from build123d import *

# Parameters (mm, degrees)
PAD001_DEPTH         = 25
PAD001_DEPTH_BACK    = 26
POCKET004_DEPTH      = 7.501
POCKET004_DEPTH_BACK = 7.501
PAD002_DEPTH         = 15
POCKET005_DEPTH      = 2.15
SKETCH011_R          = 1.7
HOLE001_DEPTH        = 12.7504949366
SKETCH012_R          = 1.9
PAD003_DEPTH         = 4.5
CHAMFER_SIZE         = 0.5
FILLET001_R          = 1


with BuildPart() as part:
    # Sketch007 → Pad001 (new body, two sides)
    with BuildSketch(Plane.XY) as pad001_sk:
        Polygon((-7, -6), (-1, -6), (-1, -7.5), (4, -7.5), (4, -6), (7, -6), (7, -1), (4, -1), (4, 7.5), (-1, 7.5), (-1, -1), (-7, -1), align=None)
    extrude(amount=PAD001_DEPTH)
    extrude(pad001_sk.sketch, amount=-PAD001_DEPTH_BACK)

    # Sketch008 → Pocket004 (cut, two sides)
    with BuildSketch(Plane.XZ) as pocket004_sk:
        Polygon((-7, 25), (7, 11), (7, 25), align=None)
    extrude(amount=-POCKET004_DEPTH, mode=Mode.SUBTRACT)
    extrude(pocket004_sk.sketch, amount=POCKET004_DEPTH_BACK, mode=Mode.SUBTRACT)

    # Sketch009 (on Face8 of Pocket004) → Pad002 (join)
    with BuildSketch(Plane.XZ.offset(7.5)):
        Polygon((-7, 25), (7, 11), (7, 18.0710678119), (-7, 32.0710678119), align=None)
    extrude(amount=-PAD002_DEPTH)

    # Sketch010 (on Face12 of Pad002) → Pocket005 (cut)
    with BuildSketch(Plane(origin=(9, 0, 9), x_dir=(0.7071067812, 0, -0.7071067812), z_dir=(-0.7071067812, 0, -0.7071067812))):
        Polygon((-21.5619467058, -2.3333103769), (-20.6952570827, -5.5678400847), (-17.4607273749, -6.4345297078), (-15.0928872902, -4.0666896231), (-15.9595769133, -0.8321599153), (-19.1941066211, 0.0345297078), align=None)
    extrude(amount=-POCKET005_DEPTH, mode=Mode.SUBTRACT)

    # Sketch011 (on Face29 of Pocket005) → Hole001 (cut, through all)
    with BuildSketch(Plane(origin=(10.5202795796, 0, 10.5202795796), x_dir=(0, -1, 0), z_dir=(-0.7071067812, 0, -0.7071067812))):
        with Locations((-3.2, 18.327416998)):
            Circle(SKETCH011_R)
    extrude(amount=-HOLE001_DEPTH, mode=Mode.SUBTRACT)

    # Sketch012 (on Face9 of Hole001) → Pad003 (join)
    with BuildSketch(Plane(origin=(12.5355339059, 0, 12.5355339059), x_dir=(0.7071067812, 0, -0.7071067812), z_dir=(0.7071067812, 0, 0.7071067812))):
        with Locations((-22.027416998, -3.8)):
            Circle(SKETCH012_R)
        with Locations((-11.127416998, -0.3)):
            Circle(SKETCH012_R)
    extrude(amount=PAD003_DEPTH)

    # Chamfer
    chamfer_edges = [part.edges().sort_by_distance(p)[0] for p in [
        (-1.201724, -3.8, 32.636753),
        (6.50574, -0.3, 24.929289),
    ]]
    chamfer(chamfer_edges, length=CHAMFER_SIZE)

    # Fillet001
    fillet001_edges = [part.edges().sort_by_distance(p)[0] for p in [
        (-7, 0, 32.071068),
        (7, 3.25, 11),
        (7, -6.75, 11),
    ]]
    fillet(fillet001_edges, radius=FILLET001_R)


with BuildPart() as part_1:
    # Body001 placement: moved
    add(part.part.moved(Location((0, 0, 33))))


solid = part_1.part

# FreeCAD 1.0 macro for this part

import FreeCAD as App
import Part
import Sketcher
Q = App.Units.Quantity


def edges_at(feature, points):
    """Names of the edges that pass closest to the given points."""
    edges = feature.Shape.Edges
    near = lambda p: min(range(len(edges)), key=lambda i: edges[i].distToShape(Part.Vertex(*p))[0])
    return sorted({f"Edge{near(p) + 1}" for p in points})


def add_polygon(sketch, points):
    """Adds a closed chain of lines whose ends are joined by coincident constraints."""
    first, n = sketch.GeometryCount, len(points)
    for a, b in zip(points, points[1:] + points[:1]):
        sketch.addGeometry(Part.LineSegment(App.Vector(*a, 0), App.Vector(*b, 0)), False)
    for i in range(n):
        sketch.addConstraint(Sketcher.Constraint("Coincident", first + i, 2, first + (i + 1) % n, 1))

doc = App.newDocument("Part")
body = doc.addObject("PartDesign::Body", "Body")

sketch1 = body.newObject("Sketcher::SketchObject", "Sketch")
sketch1.AttachmentSupport = (doc.getObject("XY_Plane"), [""])
sketch1.MapMode = "FlatFace"
add_polygon(sketch1, [(-7, -6), (-1, -6), (-1, -7.5), (4, -7.5), (4, -6), (7, -6), (7, -1), (4, -1), (4, 7.5), (-1, 7.5), (-1, -1), (-7, -1)])
sketch1.addConstraint([
    Sketcher.Constraint("Horizontal", 0),
    Sketcher.Constraint("Vertical", 1),
    Sketcher.Constraint("Horizontal", 2),
    Sketcher.Constraint("Vertical", 3),
    Sketcher.Constraint("Horizontal", 4),
    Sketcher.Constraint("Vertical", 5),
    Sketcher.Constraint("Horizontal", 6),
    Sketcher.Constraint("Vertical", 7),
    Sketcher.Constraint("Horizontal", 8),
    Sketcher.Constraint("Vertical", 9),
    Sketcher.Constraint("Horizontal", 10),
    Sketcher.Constraint("Vertical", 11),
    Sketcher.Constraint("Symmetric", 5, 2, 10, 2, -2),
    Sketcher.Constraint("Symmetric", 2, 2, 7, 2, -1),
    Sketcher.Constraint("Horizontal", 0, 2, 3, 2),
    Sketcher.Constraint("Vertical", 1, 2, 8, 2),
    Sketcher.Constraint("Equal", 8, 5),
    Sketcher.Constraint("DistanceX", 0, 1, 0, 2, Q("6 mm")),
    Sketcher.Constraint("DistanceX", 2, 1, 2, 2, Q("5 mm")),
    Sketcher.Constraint("DistanceX", 4, 1, 4, 2, Q("3 mm")),
    Sketcher.Constraint("DistanceY", 1, 2, 1, 1, Q("1.5 mm")),
    Sketcher.Constraint("DistanceY", 7, 1, 7, 2, Q("8.5 mm")),
])
pad1 = body.newObject("PartDesign::Pad", "Pad")
pad1.Profile = sketch1
pad1.Type = "TwoLengths"
pad1.Length = 25
pad1.Length2 = 26

sketch2 = body.newObject("Sketcher::SketchObject", "Sketch001")
sketch2.AttachmentSupport = (doc.getObject("XZ_Plane"), [""])
sketch2.MapMode = "FlatFace"
add_polygon(sketch2, [(-7, 25), (7, 11), (7, 25)])
sketch2.addConstraint([
    Sketcher.Constraint("Vertical", 1),
    Sketcher.Constraint("Horizontal", 2),
    Sketcher.Constraint("Equal", 2, 1),
    Sketcher.Constraint("DistanceX", 2, 2, 2, 1, Q("14 mm")),
    Sketcher.Constraint("DistanceX", -1, 1, 0, 2, Q("7 mm")),
    Sketcher.Constraint("DistanceY", -1, 1, 0, 2, Q("11 mm")),
])
pocket1 = body.newObject("PartDesign::Pocket", "Pocket")
pocket1.Profile = sketch2
pocket1.Type = "ThroughAll"
pocket1.Midplane = True

sketch3 = body.newObject("Sketcher::SketchObject", "Sketch002")
sketch3.AttachmentSupport = (doc.getObject("XZ_Plane"), [""])
sketch3.MapMode = "FlatFace"
sketch3.AttachmentOffset = App.Placement(App.Vector(0, 0, 7.5), App.Rotation())
add_polygon(sketch3, [(-7, 25), (7, 11), (7, 18.071068), (-7, 32.071068)])
sketch3.addConstraint([
    Sketcher.Constraint("Vertical", 1),
    Sketcher.Constraint("Vertical", 3),
    Sketcher.Constraint("Parallel", 0, 2),
    Sketcher.Constraint("Angle", 0, Q("-45 deg")),
    Sketcher.Constraint("DistanceX", -1, 1, 0, 2, Q("7 mm")),
    Sketcher.Constraint("DistanceY", -1, 1, 0, 2, Q("11 mm")),
    Sketcher.Constraint("DistanceX", 2, 2, -1, 1, Q("7 mm")),
    Sketcher.Constraint("DistanceY", 1, 1, 1, 2, Q("7.071068 mm")),
])
pad2 = body.newObject("PartDesign::Pad", "Pad001")
pad2.Profile = sketch3
pad2.Length = 15
pad2.Reversed = True

sketch4 = body.newObject("Sketcher::SketchObject", "Sketch003")
sketch4.Placement = App.Placement(App.Vector(9, 0, 9), App.Rotation(App.Vector(0.707106781, 0, -0.707106781), App.Vector(0, -0.999999999, 0), App.Vector(-0.707106781, 0, -0.707106781), "ZXY"))
add_polygon(sketch4, [(-21.561947, -2.33331), (-20.695257, -5.56784), (-17.460727, -6.43453), (-15.092887, -4.06669), (-15.959577, -0.83216), (-19.194107, 0.03453)])
sketch4.addConstraint([
    Sketcher.Constraint("Parallel", 0, 3),
    Sketcher.Constraint("Parallel", 1, 4),
    Sketcher.Constraint("Parallel", 2, 5),
    Sketcher.Constraint("Equal", 0, 1),
    Sketcher.Constraint("Equal", 1, 2),
    Sketcher.Constraint("Equal", 2, 3),
    Sketcher.Constraint("Angle", 0, Q("-75 deg")),
    Sketcher.Constraint("Angle", 1, Q("-15 deg")),
    Sketcher.Constraint("Angle", 2, Q("45 deg")),
    Sketcher.Constraint("Distance", 0, Q("3.348632 mm")),
    Sketcher.Constraint("DistanceY", 0, 2, -1, 1, Q("5.56784 mm")),
    Sketcher.Constraint("DistanceX", 0, 2, -1, 1, Q("20.695257 mm")),
])
pocket2 = body.newObject("PartDesign::Pocket", "Pocket001")
pocket2.Profile = sketch4
pocket2.Length = 2.15

sketch5 = body.newObject("Sketcher::SketchObject", "Sketch004")
sketch5.Placement = App.Placement(App.Vector(10.52028, 0, 10.52028), App.Rotation(App.Vector(0, -1, 0), App.Vector(-0.707106781, 0, 0.707106781), App.Vector(-0.707106781, 0, -0.707106781), "ZXY"))
sketch5.addGeometry(Part.Circle(App.Vector(-3.2, 18.327417, 0), App.Vector(0, 0, 1), 1.7), False)
sketch5.addConstraint([
    Sketcher.Constraint("Diameter", 0, Q("3.4 mm")),
    Sketcher.Constraint("DistanceX", 0, 3, -1, 1, Q("3.2 mm")),
    Sketcher.Constraint("DistanceY", -1, 1, 0, 3, Q("18.327417 mm")),
])
pocket3 = body.newObject("PartDesign::Pocket", "Pocket002")
pocket3.Profile = sketch5
pocket3.Type = "ThroughAll"

sketch6 = body.newObject("Sketcher::SketchObject", "Sketch005")
sketch6.Placement = App.Placement(App.Vector(12.535534, 0, 12.535534), App.Rotation(App.Vector(0.707106781, 0, -0.707106781), App.Vector(0, 0.999999999, 0), App.Vector(0.707106781, 0, 0.707106781), "ZXY"))
sketch6.addGeometry([
    Part.Circle(App.Vector(-22.027417, -3.8, 0), App.Vector(0, 0, 1), 1.9),
    Part.Circle(App.Vector(-11.127417, -0.3, 0), App.Vector(0, 0, 1), 1.9),
], False)
sketch6.addConstraint([
    Sketcher.Constraint("Equal", 0, 1),
    Sketcher.Constraint("Diameter", 0, Q("3.8 mm")),
    Sketcher.Constraint("DistanceY", 0, 3, -1, 1, Q("3.8 mm")),
    Sketcher.Constraint("DistanceY", 1, 3, -1, 1, Q("0.3 mm")),
    Sketcher.Constraint("DistanceX", 0, 3, 1, 3, Q("10.9 mm")),
    Sketcher.Constraint("DistanceX", 0, 3, -1, 1, Q("22.027417 mm")),
])
pad3 = body.newObject("PartDesign::Pad", "Pad002")
pad3.Profile = sketch6
pad3.Length = 4.5
doc.recompute()

chamfer = body.newObject("PartDesign::Chamfer", "Chamfer")
chamfer.Base = (pad3, edges_at(pad3, [(-1.202, -3.8, 32.637), (6.506, -0.3, 24.929)]))
chamfer.Size = 0.5
doc.recompute()

fillet = body.newObject("PartDesign::Fillet", "Fillet")
fillet.Base = (chamfer, edges_at(chamfer, [(-7, 0, 32.071), (7, 3.25, 11), (7, -6.75, 11)]))
fillet.Radius = 1
body2 = doc.addObject("PartDesign::Body", "Body001")
doc.recompute()

body.Placement = App.Placement(App.Vector(0, 0, 33), App.Rotation(App.Vector(0, 0, 1), 0))
boolean = body2.newObject("PartDesign::Boolean", "Boolean")
boolean.Type = "Fuse"
boolean.addObjects([body])

doc.recompute()
